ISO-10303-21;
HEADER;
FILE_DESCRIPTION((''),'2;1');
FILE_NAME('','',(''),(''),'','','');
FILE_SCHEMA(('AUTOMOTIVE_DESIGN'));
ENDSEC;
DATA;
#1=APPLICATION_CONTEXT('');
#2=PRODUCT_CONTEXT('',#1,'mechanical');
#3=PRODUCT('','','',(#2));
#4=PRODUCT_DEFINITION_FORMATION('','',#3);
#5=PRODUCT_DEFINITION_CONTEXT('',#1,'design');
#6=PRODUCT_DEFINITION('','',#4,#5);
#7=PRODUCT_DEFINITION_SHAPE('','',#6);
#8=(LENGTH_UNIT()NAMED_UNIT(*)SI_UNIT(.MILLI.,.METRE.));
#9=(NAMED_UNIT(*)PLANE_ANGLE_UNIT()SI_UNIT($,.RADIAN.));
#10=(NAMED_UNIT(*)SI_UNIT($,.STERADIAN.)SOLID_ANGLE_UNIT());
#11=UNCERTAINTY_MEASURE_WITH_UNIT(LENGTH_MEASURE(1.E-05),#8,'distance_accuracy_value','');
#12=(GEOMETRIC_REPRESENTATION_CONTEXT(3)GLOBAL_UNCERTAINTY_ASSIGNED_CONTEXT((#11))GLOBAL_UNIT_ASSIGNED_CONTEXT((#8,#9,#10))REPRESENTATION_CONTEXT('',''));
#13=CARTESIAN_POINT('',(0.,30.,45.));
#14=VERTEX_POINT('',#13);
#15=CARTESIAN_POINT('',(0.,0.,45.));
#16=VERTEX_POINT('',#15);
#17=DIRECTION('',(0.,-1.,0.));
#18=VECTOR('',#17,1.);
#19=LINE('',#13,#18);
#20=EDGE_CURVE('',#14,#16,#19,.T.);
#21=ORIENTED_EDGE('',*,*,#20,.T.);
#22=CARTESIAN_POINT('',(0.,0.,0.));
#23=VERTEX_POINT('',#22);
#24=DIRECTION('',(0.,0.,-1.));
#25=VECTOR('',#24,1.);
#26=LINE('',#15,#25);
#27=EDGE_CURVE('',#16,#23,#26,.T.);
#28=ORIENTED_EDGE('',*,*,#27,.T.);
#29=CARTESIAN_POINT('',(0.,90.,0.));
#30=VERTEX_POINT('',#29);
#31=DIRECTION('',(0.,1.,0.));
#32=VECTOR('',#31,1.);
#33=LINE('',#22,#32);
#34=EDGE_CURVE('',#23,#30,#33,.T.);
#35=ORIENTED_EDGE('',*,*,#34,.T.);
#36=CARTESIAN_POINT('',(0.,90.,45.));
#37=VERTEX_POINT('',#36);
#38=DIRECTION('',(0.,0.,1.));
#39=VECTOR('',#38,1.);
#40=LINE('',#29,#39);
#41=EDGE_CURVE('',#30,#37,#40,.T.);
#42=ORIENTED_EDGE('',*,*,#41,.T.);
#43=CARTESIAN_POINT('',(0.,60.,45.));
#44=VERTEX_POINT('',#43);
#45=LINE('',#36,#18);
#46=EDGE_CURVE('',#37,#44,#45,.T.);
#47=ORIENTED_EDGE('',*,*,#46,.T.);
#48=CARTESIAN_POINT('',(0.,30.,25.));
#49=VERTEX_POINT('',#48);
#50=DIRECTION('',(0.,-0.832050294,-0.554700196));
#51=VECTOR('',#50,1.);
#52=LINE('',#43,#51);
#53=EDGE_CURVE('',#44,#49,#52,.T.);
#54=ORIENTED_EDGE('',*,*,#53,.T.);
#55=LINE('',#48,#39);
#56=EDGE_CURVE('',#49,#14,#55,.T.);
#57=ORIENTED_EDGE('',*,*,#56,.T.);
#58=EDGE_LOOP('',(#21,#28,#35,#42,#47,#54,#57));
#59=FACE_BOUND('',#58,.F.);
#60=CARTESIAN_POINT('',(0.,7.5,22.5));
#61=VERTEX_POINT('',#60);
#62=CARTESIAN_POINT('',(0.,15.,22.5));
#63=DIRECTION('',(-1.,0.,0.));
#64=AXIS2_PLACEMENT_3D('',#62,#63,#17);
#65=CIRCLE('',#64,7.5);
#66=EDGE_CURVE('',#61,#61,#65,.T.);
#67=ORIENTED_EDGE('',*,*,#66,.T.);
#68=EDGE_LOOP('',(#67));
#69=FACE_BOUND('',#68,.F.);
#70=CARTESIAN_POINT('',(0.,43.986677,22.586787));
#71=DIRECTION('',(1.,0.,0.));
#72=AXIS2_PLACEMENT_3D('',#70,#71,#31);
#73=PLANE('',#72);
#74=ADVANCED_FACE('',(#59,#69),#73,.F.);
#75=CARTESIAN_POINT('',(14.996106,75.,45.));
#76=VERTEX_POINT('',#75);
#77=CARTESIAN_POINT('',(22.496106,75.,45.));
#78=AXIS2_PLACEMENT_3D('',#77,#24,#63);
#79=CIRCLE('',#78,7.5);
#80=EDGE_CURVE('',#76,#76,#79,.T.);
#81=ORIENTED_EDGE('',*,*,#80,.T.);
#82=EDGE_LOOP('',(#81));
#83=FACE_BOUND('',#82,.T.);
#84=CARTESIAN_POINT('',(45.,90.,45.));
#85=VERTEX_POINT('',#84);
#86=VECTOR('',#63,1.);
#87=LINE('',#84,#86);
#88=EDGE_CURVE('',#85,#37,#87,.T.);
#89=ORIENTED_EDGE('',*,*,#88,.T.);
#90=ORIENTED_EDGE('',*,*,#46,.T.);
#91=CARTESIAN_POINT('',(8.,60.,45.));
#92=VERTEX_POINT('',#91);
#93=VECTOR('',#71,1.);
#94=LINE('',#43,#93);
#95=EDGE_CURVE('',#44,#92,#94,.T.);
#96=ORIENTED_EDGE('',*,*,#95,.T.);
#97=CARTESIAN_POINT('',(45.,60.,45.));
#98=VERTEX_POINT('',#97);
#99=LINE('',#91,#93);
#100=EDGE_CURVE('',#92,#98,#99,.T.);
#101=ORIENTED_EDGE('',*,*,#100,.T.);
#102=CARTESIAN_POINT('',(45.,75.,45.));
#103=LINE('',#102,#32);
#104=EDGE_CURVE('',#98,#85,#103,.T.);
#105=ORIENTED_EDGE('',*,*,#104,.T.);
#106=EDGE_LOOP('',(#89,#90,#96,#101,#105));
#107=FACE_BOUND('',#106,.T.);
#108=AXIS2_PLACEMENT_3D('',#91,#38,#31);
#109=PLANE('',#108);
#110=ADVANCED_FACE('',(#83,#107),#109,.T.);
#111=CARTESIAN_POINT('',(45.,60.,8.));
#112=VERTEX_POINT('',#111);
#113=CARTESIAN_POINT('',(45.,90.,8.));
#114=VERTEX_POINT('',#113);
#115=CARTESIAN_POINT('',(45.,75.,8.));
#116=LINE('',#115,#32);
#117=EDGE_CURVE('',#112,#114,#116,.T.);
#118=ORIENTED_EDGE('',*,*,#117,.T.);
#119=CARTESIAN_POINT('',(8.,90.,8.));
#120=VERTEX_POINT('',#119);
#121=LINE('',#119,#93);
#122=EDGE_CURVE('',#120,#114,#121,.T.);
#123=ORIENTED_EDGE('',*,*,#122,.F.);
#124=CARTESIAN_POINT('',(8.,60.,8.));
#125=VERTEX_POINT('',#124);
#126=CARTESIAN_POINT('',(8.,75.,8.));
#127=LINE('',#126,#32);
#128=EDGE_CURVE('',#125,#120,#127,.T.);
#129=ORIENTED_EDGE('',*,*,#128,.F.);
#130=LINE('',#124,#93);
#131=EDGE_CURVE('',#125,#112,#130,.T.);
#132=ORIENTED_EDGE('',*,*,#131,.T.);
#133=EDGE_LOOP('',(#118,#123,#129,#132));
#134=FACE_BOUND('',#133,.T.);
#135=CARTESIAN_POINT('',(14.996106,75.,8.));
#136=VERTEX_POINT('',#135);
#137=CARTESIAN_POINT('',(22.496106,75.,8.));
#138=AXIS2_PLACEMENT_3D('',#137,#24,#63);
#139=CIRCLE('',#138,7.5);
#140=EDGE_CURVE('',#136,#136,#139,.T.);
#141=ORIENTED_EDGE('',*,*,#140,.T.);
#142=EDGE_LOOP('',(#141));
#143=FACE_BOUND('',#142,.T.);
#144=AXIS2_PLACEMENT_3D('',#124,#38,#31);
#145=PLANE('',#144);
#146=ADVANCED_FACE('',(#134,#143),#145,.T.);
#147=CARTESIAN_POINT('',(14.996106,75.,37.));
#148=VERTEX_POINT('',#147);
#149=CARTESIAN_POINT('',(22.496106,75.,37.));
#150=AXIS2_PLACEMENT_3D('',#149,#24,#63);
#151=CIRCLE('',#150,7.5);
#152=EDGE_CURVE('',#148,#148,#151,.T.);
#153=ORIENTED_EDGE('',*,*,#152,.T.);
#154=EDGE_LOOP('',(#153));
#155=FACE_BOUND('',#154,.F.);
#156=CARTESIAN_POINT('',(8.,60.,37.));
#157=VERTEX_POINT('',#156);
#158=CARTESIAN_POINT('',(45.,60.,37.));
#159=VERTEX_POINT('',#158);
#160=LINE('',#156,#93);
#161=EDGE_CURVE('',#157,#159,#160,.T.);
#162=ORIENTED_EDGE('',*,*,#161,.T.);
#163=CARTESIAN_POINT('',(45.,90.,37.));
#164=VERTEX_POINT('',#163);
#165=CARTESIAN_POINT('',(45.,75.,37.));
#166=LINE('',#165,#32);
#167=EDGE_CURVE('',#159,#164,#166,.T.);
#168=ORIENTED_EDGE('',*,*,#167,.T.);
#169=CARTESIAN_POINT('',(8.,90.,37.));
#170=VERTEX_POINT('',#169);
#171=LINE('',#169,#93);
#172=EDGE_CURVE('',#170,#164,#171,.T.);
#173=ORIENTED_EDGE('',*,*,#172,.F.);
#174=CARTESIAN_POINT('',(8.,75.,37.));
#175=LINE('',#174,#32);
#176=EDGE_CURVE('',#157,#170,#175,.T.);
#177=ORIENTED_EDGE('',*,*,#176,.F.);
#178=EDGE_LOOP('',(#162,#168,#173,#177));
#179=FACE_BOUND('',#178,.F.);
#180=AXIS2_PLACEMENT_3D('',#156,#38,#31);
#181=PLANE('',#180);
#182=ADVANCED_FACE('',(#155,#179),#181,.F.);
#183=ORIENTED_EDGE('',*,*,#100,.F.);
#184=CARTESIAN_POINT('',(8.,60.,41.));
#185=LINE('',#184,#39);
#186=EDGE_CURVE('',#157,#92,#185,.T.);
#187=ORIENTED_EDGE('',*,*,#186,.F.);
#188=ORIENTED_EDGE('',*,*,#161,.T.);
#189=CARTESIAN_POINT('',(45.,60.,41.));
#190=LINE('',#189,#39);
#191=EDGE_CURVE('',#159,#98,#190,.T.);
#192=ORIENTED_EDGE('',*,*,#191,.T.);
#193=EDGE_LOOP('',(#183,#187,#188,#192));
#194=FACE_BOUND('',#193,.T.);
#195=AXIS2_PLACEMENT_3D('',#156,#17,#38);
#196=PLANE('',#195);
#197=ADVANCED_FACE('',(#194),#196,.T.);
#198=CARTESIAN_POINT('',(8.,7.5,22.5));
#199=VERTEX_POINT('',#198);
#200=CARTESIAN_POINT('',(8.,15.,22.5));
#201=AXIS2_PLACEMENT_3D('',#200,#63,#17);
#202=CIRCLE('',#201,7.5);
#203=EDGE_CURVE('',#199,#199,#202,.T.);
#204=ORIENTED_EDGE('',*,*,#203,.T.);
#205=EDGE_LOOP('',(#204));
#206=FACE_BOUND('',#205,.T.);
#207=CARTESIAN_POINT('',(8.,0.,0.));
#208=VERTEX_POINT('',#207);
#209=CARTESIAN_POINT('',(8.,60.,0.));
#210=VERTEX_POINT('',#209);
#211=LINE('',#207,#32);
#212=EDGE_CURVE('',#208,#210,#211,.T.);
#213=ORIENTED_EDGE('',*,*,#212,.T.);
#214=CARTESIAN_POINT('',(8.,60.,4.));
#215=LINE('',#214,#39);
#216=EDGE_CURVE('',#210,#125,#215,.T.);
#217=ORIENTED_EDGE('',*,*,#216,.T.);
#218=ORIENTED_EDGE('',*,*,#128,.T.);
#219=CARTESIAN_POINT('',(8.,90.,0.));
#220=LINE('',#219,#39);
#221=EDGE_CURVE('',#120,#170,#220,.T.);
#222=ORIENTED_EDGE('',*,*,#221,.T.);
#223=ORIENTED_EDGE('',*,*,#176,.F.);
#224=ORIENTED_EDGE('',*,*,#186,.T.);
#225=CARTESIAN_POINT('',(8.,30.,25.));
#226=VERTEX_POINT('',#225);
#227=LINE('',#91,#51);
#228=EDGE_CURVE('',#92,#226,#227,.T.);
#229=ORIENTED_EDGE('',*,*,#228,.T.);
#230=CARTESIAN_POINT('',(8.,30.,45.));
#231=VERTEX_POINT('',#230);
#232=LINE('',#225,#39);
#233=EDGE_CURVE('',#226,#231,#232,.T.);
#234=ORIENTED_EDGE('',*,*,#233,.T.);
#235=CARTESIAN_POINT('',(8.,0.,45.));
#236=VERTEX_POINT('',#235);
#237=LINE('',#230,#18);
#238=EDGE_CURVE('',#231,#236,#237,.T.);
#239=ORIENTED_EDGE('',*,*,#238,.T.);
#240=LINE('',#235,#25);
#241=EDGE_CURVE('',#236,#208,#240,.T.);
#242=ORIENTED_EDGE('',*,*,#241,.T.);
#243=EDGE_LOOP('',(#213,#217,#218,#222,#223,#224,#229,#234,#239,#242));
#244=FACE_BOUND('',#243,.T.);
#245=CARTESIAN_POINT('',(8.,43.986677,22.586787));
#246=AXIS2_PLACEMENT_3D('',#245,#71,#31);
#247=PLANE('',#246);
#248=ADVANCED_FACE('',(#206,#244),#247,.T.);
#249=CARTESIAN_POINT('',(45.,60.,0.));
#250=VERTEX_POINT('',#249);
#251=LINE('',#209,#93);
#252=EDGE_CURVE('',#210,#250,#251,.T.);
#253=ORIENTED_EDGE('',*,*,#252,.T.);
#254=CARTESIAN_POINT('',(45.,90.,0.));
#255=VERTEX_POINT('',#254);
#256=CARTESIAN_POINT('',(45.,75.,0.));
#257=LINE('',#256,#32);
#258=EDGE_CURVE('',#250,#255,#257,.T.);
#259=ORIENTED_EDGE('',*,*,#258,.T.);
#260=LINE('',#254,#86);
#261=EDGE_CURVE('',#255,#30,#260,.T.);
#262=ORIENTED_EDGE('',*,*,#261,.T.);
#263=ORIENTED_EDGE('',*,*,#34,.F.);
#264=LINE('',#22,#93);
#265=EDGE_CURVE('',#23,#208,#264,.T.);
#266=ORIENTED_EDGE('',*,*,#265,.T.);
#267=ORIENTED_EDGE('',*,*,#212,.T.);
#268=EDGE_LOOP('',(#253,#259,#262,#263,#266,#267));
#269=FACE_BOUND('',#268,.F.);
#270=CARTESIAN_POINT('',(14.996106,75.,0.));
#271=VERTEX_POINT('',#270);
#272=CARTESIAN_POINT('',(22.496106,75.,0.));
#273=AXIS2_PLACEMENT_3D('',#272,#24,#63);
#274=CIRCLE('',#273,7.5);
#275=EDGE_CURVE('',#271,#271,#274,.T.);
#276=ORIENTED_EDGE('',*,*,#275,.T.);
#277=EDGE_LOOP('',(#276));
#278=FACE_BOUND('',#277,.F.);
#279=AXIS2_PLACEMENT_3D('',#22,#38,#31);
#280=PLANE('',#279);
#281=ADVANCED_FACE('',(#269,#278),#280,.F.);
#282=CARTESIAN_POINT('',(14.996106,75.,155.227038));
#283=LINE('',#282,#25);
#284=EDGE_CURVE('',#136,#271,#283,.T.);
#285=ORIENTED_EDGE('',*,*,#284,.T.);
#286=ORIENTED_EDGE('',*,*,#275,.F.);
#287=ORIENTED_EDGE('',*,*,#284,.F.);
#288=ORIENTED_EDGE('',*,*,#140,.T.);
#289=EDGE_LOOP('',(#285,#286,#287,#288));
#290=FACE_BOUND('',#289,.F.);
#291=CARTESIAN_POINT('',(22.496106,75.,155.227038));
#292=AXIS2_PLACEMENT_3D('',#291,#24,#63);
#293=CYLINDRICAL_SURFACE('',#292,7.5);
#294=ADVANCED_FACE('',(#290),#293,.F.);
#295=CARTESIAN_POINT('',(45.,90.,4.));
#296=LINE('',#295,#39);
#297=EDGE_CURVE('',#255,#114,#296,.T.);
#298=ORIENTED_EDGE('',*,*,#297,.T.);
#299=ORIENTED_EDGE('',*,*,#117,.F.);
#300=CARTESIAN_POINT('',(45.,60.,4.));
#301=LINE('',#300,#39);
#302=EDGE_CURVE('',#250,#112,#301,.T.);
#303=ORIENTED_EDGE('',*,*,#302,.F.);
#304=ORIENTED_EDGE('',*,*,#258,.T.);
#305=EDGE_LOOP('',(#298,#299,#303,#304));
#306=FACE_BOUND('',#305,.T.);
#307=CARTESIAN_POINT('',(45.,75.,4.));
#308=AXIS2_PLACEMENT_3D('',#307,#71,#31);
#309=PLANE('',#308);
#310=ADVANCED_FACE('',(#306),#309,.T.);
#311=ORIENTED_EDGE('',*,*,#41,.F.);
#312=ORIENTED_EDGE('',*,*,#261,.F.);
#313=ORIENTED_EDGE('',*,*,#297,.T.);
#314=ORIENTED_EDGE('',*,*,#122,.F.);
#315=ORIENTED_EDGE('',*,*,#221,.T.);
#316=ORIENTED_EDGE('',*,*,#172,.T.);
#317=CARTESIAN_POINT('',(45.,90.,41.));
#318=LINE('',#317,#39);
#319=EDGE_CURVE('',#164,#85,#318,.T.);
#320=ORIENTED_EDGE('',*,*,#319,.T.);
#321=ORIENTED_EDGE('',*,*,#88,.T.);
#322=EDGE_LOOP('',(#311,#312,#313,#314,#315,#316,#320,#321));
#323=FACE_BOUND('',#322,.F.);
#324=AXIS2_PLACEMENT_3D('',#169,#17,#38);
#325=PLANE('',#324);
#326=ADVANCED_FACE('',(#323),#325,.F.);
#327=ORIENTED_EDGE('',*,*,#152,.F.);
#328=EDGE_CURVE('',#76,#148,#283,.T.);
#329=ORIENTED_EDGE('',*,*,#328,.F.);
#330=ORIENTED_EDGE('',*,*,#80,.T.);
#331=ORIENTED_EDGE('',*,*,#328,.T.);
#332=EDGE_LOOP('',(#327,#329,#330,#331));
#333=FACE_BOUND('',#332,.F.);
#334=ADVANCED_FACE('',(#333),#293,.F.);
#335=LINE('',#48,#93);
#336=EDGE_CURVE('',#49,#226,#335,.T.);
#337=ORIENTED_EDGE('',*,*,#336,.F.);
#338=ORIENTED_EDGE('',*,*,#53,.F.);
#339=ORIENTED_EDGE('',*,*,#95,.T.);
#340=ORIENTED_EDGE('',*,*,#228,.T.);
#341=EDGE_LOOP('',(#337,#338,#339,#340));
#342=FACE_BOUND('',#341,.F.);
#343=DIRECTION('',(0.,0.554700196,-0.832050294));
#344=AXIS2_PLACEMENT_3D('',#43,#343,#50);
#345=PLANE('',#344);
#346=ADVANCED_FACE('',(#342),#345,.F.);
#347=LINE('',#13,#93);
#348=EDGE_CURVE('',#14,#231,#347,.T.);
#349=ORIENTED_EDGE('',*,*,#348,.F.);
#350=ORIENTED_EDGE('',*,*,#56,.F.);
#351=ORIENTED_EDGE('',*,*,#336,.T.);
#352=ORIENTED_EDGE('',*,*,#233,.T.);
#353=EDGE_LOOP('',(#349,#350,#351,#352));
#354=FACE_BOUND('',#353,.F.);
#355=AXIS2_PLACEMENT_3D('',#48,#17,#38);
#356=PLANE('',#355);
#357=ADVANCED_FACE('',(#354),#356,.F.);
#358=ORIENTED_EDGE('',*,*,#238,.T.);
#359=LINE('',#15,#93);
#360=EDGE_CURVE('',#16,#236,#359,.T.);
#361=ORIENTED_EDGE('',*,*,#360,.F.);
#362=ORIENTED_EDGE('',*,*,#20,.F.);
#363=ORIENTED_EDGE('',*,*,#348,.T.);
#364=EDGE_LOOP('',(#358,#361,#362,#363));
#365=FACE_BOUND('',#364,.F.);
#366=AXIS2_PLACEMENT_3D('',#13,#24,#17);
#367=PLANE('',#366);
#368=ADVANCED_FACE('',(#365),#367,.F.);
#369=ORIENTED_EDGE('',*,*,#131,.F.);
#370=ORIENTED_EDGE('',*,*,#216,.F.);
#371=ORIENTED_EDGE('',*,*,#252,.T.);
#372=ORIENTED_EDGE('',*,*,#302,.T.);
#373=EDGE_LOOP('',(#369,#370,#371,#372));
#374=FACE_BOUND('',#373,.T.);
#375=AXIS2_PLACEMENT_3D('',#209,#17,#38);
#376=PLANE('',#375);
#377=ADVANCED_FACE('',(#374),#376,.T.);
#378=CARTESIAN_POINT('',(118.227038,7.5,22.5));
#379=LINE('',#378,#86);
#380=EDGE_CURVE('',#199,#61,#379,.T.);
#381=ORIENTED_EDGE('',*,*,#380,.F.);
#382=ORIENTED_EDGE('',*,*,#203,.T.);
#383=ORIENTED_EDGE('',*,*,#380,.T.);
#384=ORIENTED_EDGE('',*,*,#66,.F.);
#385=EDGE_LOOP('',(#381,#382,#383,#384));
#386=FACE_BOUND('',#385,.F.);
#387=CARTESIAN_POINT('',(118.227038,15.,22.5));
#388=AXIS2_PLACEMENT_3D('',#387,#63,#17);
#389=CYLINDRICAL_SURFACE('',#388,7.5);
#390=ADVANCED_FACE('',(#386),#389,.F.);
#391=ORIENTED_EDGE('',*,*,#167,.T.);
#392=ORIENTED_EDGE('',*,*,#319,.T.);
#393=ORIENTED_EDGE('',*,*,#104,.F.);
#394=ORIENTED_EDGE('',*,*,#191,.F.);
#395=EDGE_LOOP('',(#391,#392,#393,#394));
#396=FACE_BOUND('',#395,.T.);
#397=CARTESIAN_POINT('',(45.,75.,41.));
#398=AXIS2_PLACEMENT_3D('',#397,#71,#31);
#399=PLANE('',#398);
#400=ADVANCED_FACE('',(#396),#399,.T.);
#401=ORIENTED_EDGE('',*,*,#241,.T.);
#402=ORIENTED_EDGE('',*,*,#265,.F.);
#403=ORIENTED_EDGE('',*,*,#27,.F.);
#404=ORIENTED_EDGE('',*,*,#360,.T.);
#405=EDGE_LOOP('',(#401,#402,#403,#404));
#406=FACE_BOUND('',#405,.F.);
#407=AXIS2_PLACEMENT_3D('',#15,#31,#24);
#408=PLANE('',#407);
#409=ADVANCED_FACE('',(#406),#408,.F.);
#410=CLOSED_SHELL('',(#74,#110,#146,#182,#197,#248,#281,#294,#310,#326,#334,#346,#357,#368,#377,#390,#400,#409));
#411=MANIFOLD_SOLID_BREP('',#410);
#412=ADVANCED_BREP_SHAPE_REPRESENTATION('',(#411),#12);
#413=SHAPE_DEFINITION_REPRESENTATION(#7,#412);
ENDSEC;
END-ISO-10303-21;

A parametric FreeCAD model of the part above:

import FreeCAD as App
import Part
import Sketcher

V = App.Vector
Q = App.Units.Quantity

doc = App.newDocument("Part")
body = doc.addObject("PartDesign::Body", "Body")

sketch1 = body.newObject("Sketcher::SketchObject", "Sketch")
sketch1.AttachmentSupport = (doc.getObject("YZ_Plane"), [""])
sketch1.MapMode = "FlatFace"
sketch1.addGeometry([
    Part.LineSegment(V(30, 45, 0), V(0, 45, 0)),
    Part.LineSegment(V(0, 45, 0), V(0, 0, 0)),
    Part.LineSegment(V(0, 0, 0), V(90, 0, 0)),
    Part.LineSegment(V(90, 0, 0), V(90, 45, 0)),
    Part.LineSegment(V(90, 45, 0), V(60, 45, 0)),
    Part.LineSegment(V(60, 45, 0), V(30, 25, 0)),
    Part.LineSegment(V(30, 25, 0), V(30, 45, 0)),
], False)
sketch1.addConstraint([
    Sketcher.Constraint("Coincident", 0, 2, 1, 1),
    Sketcher.Constraint("Coincident", 1, 2, 2, 1),
    Sketcher.Constraint("Coincident", 2, 2, 3, 1),
    Sketcher.Constraint("Coincident", 3, 2, 4, 1),
    Sketcher.Constraint("Coincident", 4, 2, 5, 1),
    Sketcher.Constraint("Coincident", 5, 2, 6, 1),
    Sketcher.Constraint("Coincident", 6, 2, 0, 1),
    Sketcher.Constraint("Horizontal", 0),
    Sketcher.Constraint("Vertical", 1),
    Sketcher.Constraint("Horizontal", 2),
    Sketcher.Constraint("Vertical", 3),
    Sketcher.Constraint("Horizontal", 4),
    Sketcher.Constraint("Vertical", 6),
    Sketcher.Constraint("Coincident", 1, 2, -1, 1),
    Sketcher.Constraint("Horizontal", 0, 2, 3, 2),
    Sketcher.Constraint("Equal", 0, 4),
    Sketcher.Constraint("DistanceX", 0, 2, 0, 1, Q("30 mm")),
    Sketcher.Constraint("DistanceX", 2, 1, 2, 2, Q("90 mm")),
    Sketcher.Constraint("DistanceY", 1, 2, 1, 1, Q("45 mm")),
    Sketcher.Constraint("DistanceY", 6, 1, 6, 2, Q("20 mm")),
])
pad1 = body.newObject("PartDesign::Pad", "Pad")
pad1.Profile = sketch1
pad1.Length = 8

sketch2 = body.newObject("Sketcher::SketchObject", "Sketch001")
sketch2.AttachmentSupport = (doc.getObject("YZ_Plane"), [""])
sketch2.MapMode = "FlatFace"
sketch2.AttachmentOffset = App.Placement(V(0, 0, 8), App.Rotation())
sketch2.addGeometry([
    Part.LineSegment(V(60, 45, 0), V(60, 37, 0)),
    Part.LineSegment(V(60, 37, 0), V(90, 37, 0)),
    Part.LineSegment(V(90, 37, 0), V(90, 45, 0)),
    Part.LineSegment(V(90, 45, 0), V(60, 45, 0)),
    Part.LineSegment(V(60, 8, 0), V(60, 0, 0)),
    Part.LineSegment(V(60, 0, 0), V(90, 0, 0)),
    Part.LineSegment(V(90, 0, 0), V(90, 8, 0)),
    Part.LineSegment(V(90, 8, 0), V(60, 8, 0)),
], False)
sketch2.addConstraint([
    Sketcher.Constraint("Coincident", 0, 2, 1, 1),
    Sketcher.Constraint("Coincident", 1, 2, 2, 1),
    Sketcher.Constraint("Coincident", 2, 2, 3, 1),
    Sketcher.Constraint("Coincident", 3, 2, 0, 1),
    Sketcher.Constraint("Coincident", 4, 2, 5, 1),
    Sketcher.Constraint("Coincident", 5, 2, 6, 1),
    Sketcher.Constraint("Coincident", 6, 2, 7, 1),
    Sketcher.Constraint("Coincident", 7, 2, 4, 1),
    Sketcher.Constraint("Vertical", 0),
    Sketcher.Constraint("Horizontal", 1),
    Sketcher.Constraint("Vertical", 2),
    Sketcher.Constraint("Horizontal", 3),
    Sketcher.Constraint("Vertical", 4),
    Sketcher.Constraint("Horizontal", 5),
    Sketcher.Constraint("Vertical", 6),
    Sketcher.Constraint("Horizontal", 7),
    Sketcher.Constraint("PointOnObject", 4, 2, -1),
    Sketcher.Constraint("Vertical", 3, 2, 4, 2),
    Sketcher.Constraint("Vertical", 2, 2, 5, 2),
    Sketcher.Constraint("Equal", 2, 4),
    Sketcher.Constraint("DistanceX", 1, 1, 1, 2, Q("30 mm")),
    Sketcher.Constraint("DistanceY", 0, 2, 0, 1, Q("8 mm")),
    Sketcher.Constraint("DistanceX", -1, 1, 0, 2, Q("60 mm")),
    Sketcher.Constraint("DistanceY", -1, 1, 0, 2, Q("37 mm")),
])
pad2 = body.newObject("PartDesign::Pad", "Pad001")
pad2.Profile = sketch2
pad2.Length = 37

sketch3 = body.newObject("Sketcher::SketchObject", "Sketch002")
sketch3.AttachmentSupport = (doc.getObject("XY_Plane"), [""])
sketch3.MapMode = "FlatFace"
sketch3.AttachmentOffset = App.Placement(V(0, 0, 45), App.Rotation())
sketch3.addGeometry(Part.Circle(V(22, 75, 0), V(0, 0, 1), 8), False)
sketch3.addConstraint([
    Sketcher.Constraint("Diameter", 0, Q("15 mm")),
    Sketcher.Constraint("DistanceY", -1, 1, 0, 3, Q("75 mm")),
    Sketcher.Constraint("DistanceX", -1, 1, 0, 3, Q("22.496106 mm")),
])
doc.recompute()
hole = body.newObject("PartDesign::Hole", "Hole")
hole.Profile = sketch3
hole.ThreadType = "None"
hole.Diameter = 15
hole.DepthType = "ThroughAll"

sketch4 = body.newObject("Sketcher::SketchObject", "Sketch003")
sketch4.AttachmentSupport = (doc.getObject("YZ_Plane"), [""])
sketch4.MapMode = "FlatFace"
sketch4.AttachmentOffset = App.Placement(V(0, 0, 8), App.Rotation())
sketch4.addGeometry(Part.Circle(V(15, 22, 0), V(0, 0, 1), 8), False)
sketch4.addConstraint([
    Sketcher.Constraint("Diameter", 0, Q("15 mm")),
    Sketcher.Constraint("DistanceX", -1, 1, 0, 3, Q("15 mm")),
    Sketcher.Constraint("DistanceY", -1, 1, 0, 3, Q("22.5 mm")),
])
doc.recompute()
hole2 = body.newObject("PartDesign::Hole", "Hole001")
hole2.Profile = sketch4
hole2.ThreadType = "None"
hole2.Diameter = 15
hole2.DepthType = "ThroughAll"

doc.recompute()
